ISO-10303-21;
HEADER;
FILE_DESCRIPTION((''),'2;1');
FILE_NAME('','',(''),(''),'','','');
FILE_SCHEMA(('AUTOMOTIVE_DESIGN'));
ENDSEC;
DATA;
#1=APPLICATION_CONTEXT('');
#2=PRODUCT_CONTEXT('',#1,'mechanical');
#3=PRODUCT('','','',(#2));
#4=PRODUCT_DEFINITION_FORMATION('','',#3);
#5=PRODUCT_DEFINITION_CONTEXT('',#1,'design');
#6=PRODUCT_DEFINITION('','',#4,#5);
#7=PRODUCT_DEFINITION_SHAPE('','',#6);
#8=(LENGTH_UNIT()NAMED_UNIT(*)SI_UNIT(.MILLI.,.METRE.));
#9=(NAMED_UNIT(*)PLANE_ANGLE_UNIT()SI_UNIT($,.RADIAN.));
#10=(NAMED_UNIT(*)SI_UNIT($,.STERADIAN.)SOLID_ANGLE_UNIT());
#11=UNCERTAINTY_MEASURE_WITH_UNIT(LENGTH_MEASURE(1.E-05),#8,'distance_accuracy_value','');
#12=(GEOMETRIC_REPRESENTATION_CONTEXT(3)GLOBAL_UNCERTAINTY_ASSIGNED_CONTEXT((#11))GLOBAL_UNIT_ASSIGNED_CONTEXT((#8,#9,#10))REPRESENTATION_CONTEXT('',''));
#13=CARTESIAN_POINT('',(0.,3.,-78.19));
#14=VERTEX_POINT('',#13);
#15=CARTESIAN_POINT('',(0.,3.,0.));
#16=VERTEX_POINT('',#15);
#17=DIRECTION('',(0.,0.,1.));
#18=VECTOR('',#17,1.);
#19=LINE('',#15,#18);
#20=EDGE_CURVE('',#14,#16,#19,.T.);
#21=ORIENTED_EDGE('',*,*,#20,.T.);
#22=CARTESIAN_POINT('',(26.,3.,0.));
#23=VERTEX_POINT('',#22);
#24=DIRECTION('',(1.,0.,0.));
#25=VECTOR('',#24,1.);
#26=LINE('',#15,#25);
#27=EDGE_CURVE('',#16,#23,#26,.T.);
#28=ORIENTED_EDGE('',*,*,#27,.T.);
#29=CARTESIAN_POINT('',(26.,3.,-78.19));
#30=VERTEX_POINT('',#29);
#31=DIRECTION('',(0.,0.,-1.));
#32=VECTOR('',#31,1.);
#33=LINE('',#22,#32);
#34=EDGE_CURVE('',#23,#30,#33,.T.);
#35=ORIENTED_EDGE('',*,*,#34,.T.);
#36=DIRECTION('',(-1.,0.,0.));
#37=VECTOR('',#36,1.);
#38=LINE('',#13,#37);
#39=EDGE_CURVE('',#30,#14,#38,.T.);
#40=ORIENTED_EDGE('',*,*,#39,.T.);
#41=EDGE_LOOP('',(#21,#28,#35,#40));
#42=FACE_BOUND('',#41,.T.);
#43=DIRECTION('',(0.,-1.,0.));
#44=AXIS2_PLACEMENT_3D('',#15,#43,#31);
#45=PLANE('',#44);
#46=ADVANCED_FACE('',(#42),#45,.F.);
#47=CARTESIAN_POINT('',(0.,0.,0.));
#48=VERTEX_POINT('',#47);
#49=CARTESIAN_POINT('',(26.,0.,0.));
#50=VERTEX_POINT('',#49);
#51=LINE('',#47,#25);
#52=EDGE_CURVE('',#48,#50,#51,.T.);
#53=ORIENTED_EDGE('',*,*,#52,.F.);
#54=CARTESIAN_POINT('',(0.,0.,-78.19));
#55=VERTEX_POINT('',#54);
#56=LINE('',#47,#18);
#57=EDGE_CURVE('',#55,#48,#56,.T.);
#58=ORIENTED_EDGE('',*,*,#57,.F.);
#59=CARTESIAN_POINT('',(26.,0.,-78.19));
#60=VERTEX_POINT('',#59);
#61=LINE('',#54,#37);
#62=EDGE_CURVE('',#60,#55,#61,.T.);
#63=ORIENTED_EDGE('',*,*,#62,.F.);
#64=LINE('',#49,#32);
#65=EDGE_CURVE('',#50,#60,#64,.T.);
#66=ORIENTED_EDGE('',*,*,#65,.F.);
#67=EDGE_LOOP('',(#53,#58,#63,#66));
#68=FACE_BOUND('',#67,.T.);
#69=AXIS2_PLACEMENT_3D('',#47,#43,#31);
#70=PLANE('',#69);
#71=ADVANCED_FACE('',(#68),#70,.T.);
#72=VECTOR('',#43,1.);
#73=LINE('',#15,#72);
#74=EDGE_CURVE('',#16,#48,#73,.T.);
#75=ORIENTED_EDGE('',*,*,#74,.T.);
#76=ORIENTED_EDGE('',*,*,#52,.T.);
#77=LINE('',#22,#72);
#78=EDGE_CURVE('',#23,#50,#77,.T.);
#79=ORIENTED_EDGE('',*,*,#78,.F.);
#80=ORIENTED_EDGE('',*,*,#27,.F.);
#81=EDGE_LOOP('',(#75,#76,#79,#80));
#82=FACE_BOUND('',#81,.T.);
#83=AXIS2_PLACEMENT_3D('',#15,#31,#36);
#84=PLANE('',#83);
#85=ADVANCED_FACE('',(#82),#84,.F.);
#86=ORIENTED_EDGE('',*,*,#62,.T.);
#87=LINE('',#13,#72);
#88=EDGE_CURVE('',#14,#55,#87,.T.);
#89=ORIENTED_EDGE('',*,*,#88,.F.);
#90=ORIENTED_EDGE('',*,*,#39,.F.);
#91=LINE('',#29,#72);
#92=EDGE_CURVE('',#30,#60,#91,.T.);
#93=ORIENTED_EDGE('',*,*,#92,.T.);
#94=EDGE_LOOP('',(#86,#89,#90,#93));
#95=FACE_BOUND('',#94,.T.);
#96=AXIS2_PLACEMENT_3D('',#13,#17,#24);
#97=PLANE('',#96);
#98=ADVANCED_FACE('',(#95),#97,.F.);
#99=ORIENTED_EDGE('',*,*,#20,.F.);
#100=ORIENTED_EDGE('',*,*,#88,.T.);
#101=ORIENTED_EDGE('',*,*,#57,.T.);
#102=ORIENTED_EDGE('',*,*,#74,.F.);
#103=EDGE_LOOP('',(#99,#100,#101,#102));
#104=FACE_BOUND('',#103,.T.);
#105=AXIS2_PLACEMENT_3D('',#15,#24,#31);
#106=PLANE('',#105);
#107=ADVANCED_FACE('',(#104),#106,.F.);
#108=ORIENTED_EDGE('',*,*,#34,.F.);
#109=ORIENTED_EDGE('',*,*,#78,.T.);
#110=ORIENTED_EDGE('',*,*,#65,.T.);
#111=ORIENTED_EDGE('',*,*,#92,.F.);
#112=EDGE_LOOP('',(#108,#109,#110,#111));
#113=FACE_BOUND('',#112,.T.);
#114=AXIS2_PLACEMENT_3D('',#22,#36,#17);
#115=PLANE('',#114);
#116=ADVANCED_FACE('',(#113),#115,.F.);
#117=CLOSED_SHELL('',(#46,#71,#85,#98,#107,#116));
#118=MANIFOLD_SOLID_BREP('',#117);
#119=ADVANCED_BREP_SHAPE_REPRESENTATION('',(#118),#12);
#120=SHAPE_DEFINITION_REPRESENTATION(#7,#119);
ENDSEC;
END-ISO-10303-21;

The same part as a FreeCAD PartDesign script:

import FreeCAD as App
import Part
import Sketcher


def add_polygon(sketch, points):
    """Adds a closed chain of lines whose ends are joined by coincident constraints."""
    first, n = sketch.GeometryCount, len(points)
    for a, b in zip(points, points[1:] + points[:1]):
        sketch.addGeometry(Part.LineSegment(App.Vector(*a, 0), App.Vector(*b, 0)), False)
    for i in range(n):
        sketch.addConstraint(Sketcher.Constraint("Coincident", first + i, 2, first + (i + 1) % n, 1))

doc = App.newDocument("Part")
body = doc.addObject("PartDesign::Body", "Body")

sketch1 = body.newObject("Sketcher::SketchObject", "Sketch")
sketch1.AttachmentSupport = (doc.getObject("XZ_Plane"), [""])
sketch1.MapMode = "FlatFace"
add_polygon(sketch1, [(0, -78), (0, 0), (26, 0), (26, -78)])
sketch1.addConstraint([
    Sketcher.Constraint("Vertical", 0),
    Sketcher.Constraint("Horizontal", 1),
    Sketcher.Constraint("Vertical", 2),
    Sketcher.Constraint("Horizontal", 3),
    Sketcher.Constraint("Coincident", 0, 2, -1, 1),
    Sketcher.Constraint("DistanceX", 1, 1, 1, 2, 26.0),
    Sketcher.Constraint("DistanceY", 0, 1, 0, 2, 78.19),
])
pad1 = body.newObject("PartDesign::Pad", "Pad")
pad1.Profile = sketch1
pad1.Length = 3
pad1.Reversed = True

doc.recompute()
